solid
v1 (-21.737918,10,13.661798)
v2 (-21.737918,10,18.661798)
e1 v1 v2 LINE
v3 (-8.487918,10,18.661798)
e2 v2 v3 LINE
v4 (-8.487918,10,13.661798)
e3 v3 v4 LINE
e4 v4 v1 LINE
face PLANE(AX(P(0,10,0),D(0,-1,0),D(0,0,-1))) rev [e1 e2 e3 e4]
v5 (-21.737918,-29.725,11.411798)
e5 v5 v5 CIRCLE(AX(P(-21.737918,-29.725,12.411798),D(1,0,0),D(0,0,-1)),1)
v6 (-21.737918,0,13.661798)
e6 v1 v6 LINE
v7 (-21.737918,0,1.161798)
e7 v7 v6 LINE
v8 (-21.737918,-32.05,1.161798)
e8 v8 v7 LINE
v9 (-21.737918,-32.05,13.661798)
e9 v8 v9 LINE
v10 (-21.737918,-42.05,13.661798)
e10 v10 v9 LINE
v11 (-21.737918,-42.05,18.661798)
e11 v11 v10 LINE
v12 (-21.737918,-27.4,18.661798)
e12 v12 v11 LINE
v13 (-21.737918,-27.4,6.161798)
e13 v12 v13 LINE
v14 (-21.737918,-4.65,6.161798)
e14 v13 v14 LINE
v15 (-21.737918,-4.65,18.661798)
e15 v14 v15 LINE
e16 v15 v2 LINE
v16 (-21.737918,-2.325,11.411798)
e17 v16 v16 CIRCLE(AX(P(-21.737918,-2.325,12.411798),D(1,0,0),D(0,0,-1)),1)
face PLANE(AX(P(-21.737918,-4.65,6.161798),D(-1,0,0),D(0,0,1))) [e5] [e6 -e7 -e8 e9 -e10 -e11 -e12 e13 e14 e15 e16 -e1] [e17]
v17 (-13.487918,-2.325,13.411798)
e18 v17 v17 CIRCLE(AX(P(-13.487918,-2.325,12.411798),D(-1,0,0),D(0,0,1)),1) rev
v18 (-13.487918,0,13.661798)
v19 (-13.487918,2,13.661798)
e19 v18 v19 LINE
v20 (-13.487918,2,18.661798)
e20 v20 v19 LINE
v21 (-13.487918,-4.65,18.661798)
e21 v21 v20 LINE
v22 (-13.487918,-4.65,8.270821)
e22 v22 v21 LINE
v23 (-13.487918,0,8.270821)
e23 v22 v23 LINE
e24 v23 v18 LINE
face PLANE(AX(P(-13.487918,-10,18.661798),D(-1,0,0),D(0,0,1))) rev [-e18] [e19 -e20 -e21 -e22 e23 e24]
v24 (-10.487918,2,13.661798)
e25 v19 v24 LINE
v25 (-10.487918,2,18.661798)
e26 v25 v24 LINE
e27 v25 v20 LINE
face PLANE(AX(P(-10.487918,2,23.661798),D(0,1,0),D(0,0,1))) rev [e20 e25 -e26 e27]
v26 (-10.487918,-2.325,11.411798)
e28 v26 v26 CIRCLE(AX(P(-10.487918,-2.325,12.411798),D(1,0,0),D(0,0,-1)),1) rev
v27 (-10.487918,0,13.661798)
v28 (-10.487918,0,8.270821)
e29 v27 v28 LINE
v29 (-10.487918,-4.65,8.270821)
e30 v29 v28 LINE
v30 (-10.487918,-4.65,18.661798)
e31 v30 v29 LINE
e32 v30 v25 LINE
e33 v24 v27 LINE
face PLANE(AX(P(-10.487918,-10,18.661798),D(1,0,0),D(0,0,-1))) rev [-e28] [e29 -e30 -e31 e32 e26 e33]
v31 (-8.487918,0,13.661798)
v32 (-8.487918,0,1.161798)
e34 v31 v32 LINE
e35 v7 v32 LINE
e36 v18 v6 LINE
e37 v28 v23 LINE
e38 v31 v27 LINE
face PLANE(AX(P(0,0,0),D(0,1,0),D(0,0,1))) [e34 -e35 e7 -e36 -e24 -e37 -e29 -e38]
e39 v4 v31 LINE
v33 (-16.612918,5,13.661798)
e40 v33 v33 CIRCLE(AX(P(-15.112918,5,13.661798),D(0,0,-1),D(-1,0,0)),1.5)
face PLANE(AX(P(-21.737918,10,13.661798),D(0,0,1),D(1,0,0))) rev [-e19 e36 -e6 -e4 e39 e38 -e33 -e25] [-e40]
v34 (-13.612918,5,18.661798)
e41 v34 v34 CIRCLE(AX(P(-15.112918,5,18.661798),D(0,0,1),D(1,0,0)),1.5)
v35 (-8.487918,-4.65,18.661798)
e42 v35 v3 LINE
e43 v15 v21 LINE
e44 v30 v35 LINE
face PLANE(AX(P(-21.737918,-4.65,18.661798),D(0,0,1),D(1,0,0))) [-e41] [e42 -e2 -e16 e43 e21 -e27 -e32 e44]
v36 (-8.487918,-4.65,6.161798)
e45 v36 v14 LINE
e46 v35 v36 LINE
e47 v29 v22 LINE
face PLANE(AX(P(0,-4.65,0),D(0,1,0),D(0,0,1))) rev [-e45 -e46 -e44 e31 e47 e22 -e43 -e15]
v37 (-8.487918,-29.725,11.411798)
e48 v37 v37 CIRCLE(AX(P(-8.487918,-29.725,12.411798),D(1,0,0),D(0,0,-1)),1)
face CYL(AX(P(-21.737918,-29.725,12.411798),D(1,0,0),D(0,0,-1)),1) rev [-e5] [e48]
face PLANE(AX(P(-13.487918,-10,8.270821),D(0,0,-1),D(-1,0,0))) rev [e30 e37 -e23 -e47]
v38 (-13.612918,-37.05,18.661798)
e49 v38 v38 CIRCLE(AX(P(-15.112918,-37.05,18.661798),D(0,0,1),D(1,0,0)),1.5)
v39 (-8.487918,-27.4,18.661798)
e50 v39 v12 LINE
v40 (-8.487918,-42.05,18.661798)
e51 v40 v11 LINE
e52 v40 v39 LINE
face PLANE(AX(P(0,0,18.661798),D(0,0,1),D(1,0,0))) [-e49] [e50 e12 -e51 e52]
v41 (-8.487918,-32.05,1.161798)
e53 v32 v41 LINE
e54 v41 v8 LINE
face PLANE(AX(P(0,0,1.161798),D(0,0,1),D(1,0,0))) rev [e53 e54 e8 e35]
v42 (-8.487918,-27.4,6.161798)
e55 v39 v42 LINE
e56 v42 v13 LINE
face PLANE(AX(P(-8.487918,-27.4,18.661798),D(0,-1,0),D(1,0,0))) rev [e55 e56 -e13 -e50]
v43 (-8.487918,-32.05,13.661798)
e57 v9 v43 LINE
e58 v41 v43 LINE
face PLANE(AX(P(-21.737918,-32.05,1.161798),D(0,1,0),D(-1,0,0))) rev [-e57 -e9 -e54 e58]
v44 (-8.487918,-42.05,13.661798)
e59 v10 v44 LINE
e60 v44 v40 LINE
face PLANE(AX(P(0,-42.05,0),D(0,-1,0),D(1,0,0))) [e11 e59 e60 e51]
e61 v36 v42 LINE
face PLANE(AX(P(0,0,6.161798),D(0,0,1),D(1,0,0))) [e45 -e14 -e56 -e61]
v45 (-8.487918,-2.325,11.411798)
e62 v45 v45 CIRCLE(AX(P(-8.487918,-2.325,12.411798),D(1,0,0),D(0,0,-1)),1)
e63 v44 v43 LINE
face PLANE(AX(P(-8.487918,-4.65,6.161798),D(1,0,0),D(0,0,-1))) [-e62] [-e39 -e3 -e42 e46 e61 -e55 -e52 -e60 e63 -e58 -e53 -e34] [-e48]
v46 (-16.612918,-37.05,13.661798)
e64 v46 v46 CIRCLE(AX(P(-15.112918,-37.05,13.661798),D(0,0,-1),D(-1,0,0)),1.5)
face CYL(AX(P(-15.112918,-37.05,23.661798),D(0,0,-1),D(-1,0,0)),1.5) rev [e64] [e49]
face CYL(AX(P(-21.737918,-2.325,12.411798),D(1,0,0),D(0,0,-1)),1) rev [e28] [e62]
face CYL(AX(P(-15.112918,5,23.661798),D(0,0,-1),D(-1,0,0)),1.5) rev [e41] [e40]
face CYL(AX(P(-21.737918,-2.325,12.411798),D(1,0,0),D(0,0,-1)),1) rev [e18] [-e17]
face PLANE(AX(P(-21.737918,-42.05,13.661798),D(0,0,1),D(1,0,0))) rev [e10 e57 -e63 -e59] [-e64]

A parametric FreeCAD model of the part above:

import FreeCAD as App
import Part
import Sketcher
Q = App.Units.Quantity

doc = App.newDocument("Part")
body = doc.addObject("PartDesign::Body", "Body")

# Sketch on XZ plane
sketch1 = body.newObject("Sketcher::SketchObject", "Sketch")
sketch1.AttachmentSupport = (doc.getObject("XZ_Plane"), [""])
sketch1.MapMode = "FlatFace"
sketch1.addGeometry(Part.LineSegment(App.Vector(-21.737918, 6.161798, 0), App.Vector(-21.737918, 18.661798, 0)), False)
sketch1.addGeometry(Part.LineSegment(App.Vector(-21.737918, 18.661798, 0), App.Vector(-8.487918, 18.661798, 0)), False)
sketch1.addGeometry(Part.LineSegment(App.Vector(-8.487918, 18.661798, 0), App.Vector(-8.487918, 6.161798, 0)), False)
sketch1.addGeometry(Part.LineSegment(App.Vector(-8.487918, 6.161798, 0), App.Vector(-21.737918, 6.161798, 0)), False)
sketch1.addConstraint(Sketcher.Constraint("Coincident", 0, 2, 1, 1))
sketch1.addConstraint(Sketcher.Constraint("Coincident", 1, 2, 2, 1))
sketch1.addConstraint(Sketcher.Constraint("Coincident", 2, 2, 3, 1))
sketch1.addConstraint(Sketcher.Constraint("Coincident", 3, 2, 0, 1))
sketch1.addConstraint(Sketcher.Constraint("Vertical", 0))
sketch1.addConstraint(Sketcher.Constraint("Horizontal", 1))
sketch1.addConstraint(Sketcher.Constraint("Vertical", 2))
sketch1.addConstraint(Sketcher.Constraint("Horizontal", 3))
sketch1.addConstraint(Sketcher.Constraint("DistanceY", 0, 1, 0, 2, Q("12.5 mm")))
sketch1.addConstraint(Sketcher.Constraint("DistanceX", 1, 1, 1, 2, Q("13.25 mm")))
sketch1.addConstraint(Sketcher.Constraint("DistanceX", 0, 2, -1, 1, Q("21.737918 mm")))
sketch1.addConstraint(Sketcher.Constraint("DistanceY", -1, 1, 0, 2, Q("18.661798 mm")))
pad1 = body.newObject("PartDesign::Pad", "Pad")
pad1.Profile = sketch1
pad1.Length = 4.65

# Sketch on XY plane
sketch2 = body.newObject("Sketcher::SketchObject", "Sketch001")
sketch2.AttachmentSupport = (doc.getObject("XY_Plane"), [""])
sketch2.MapMode = "FlatFace"
sketch2.AttachmentOffset = App.Placement(App.Vector(0, 0, 6.161798), App.Rotation())
sketch2.addGeometry(Part.LineSegment(App.Vector(-8.487918, 0, 0), App.Vector(-8.487918, -32.05, 0)), False)
sketch2.addGeometry(Part.LineSegment(App.Vector(-8.487918, -32.05, 0), App.Vector(-21.737918, -32.05, 0)), False)
sketch2.addGeometry(Part.LineSegment(App.Vector(-21.737918, -32.05, 0), App.Vector(-21.737918, 0, 0)), False)
sketch2.addGeometry(Part.LineSegment(App.Vector(-21.737918, 0, 0), App.Vector(-8.487918, 0, 0)), False)
sketch2.addConstraint(Sketcher.Constraint("Coincident", 0, 2, 1, 1))
sketch2.addConstraint(Sketcher.Constraint("Coincident", 1, 2, 2, 1))
sketch2.addConstraint(Sketcher.Constraint("Coincident", 2, 2, 3, 1))
sketch2.addConstraint(Sketcher.Constraint("Coincident", 3, 2, 0, 1))
sketch2.addConstraint(Sketcher.Constraint("Vertical", 0))
sketch2.addConstraint(Sketcher.Constraint("Horizontal", 1))
sketch2.addConstraint(Sketcher.Constraint("Vertical", 2))
sketch2.addConstraint(Sketcher.Constraint("Horizontal", 3))
sketch2.addConstraint(Sketcher.Constraint("PointOnObject", 2, 2, -1))
sketch2.addConstraint(Sketcher.Constraint("DistanceX", 1, 2, 1, 1, Q("13.25 mm")))
sketch2.addConstraint(Sketcher.Constraint("DistanceY", 0, 2, 0, 1, Q("32.05 mm")))
sketch2.addConstraint(Sketcher.Constraint("DistanceX", 0, 2, -1, 1, Q("8.487918 mm")))
pad2 = body.newObject("PartDesign::Pad", "Pad001")
pad2.Profile = sketch2
pad2.Length = 5
pad2.Reversed = True

# Sketch on XY plane
sketch3 = body.newObject("Sketcher::SketchObject", "Sketch002")
sketch3.AttachmentSupport = (doc.getObject("XY_Plane"), [""])
sketch3.MapMode = "FlatFace"
sketch3.AttachmentOffset = App.Placement(App.Vector(0, 0, 6.161798), App.Rotation())
sketch3.addGeometry(Part.LineSegment(App.Vector(-21.737918, -27.4, 0), App.Vector(-21.737918, -32.05, 0)), False)
sketch3.addGeometry(Part.LineSegment(App.Vector(-21.737918, -32.05, 0), App.Vector(-8.487918, -32.05, 0)), False)
sketch3.addGeometry(Part.LineSegment(App.Vector(-8.487918, -32.05, 0), App.Vector(-8.487918, -27.4, 0)), False)
sketch3.addGeometry(Part.LineSegment(App.Vector(-8.487918, -27.4, 0), App.Vector(-21.737918, -27.4, 0)), False)
sketch3.addConstraint(Sketcher.Constraint("Coincident", 0, 2, 1, 1))
sketch3.addConstraint(Sketcher.Constraint("Coincident", 1, 2, 2, 1))
sketch3.addConstraint(Sketcher.Constraint("Coincident", 2, 2, 3, 1))
sketch3.addConstraint(Sketcher.Constraint("Coincident", 3, 2, 0, 1))
sketch3.addConstraint(Sketcher.Constraint("Vertical", 0))
sketch3.addConstraint(Sketcher.Constraint("Horizontal", 1))
sketch3.addConstraint(Sketcher.Constraint("Vertical", 2))
sketch3.addConstraint(Sketcher.Constraint("Horizontal", 3))
sketch3.addConstraint(Sketcher.Constraint("DistanceX", 1, 1, 1, 2, Q("13.25 mm")))
sketch3.addConstraint(Sketcher.Constraint("DistanceY", 0, 2, 0, 1, Q("4.65 mm")))
sketch3.addConstraint(Sketcher.Constraint("DistanceY", 2, 2, -1, 1, Q("27.4 mm")))
sketch3.addConstraint(Sketcher.Constraint("DistanceX", 0, 2, -1, 1, Q("21.737918 mm")))
pad3 = body.newObject("PartDesign::Pad", "Pad002")
pad3.Profile = sketch3
pad3.Length = 12.5

# Sketch on XZ plane
sketch4 = body.newObject("Sketcher::SketchObject", "Sketch003")
sketch4.AttachmentSupport = (doc.getObject("XZ_Plane"), [""])
sketch4.MapMode = "FlatFace"
sketch4.AttachmentOffset = App.Placement(App.Vector(0, 0, 32.05), App.Rotation())
sketch4.addGeometry(Part.LineSegment(App.Vector(-8.487918, 13.661798, 0), App.Vector(-8.487918, 18.661798, 0)), False)
sketch4.addGeometry(Part.LineSegment(App.Vector(-8.487918, 18.661798, 0), App.Vector(-21.737918, 18.661798, 0)), False)
sketch4.addGeometry(Part.LineSegment(App.Vector(-21.737918, 18.661798, 0), App.Vector(-21.737918, 13.661798, 0)), False)
sketch4.addGeometry(Part.LineSegment(App.Vector(-21.737918, 13.661798, 0), App.Vector(-8.487918, 13.661798, 0)), False)
sketch4.addConstraint(Sketcher.Constraint("Coincident", 0, 2, 1, 1))
sketch4.addConstraint(Sketcher.Constraint("Coincident", 1, 2, 2, 1))
sketch4.addConstraint(Sketcher.Constraint("Coincident", 2, 2, 3, 1))
sketch4.addConstraint(Sketcher.Constraint("Coincident", 3, 2, 0, 1))
sketch4.addConstraint(Sketcher.Constraint("Vertical", 0))
sketch4.addConstraint(Sketcher.Constraint("Horizontal", 1))
sketch4.addConstraint(Sketcher.Constraint("Vertical", 2))
sketch4.addConstraint(Sketcher.Constraint("Horizontal", 3))
sketch4.addConstraint(Sketcher.Constraint("DistanceY", 0, 1, 0, 2, Q("5 mm")))
sketch4.addConstraint(Sketcher.Constraint("DistanceX", 1, 2, 1, 1, Q("13.25 mm")))
sketch4.addConstraint(Sketcher.Constraint("DistanceX", 0, 2, -1, 1, Q("8.487918 mm")))
sketch4.addConstraint(Sketcher.Constraint("DistanceY", -1, 1, 0, 2, Q("18.661798 mm")))
pad4 = body.newObject("PartDesign::Pad", "Pad003")
pad4.Profile = sketch4
pad4.Length = 10

# Sketch on XZ plane
sketch5 = body.newObject("Sketcher::SketchObject", "Sketch004")
sketch5.AttachmentSupport = (doc.getObject("XZ_Plane"), [""])
sketch5.MapMode = "FlatFace"
sketch5.addGeometry(Part.LineSegment(App.Vector(-21.737918, 13.661798, 0), App.Vector(-21.737918, 18.661798, 0)), False)
sketch5.addGeometry(Part.LineSegment(App.Vector(-21.737918, 18.661798, 0), App.Vector(-8.487918, 18.661798, 0)), False)
sketch5.addGeometry(Part.LineSegment(App.Vector(-8.487918, 18.661798, 0), App.Vector(-8.487918, 13.661798, 0)), False)
sketch5.addGeometry(Part.LineSegment(App.Vector(-8.487918, 13.661798, 0), App.Vector(-21.737918, 13.661798, 0)), False)
sketch5.addConstraint(Sketcher.Constraint("Coincident", 0, 2, 1, 1))
sketch5.addConstraint(Sketcher.Constraint("Coincident", 1, 2, 2, 1))
sketch5.addConstraint(Sketcher.Constraint("Coincident", 2, 2, 3, 1))
sketch5.addConstraint(Sketcher.Constraint("Coincident", 3, 2, 0, 1))
sketch5.addConstraint(Sketcher.Constraint("Vertical", 0))
sketch5.addConstraint(Sketcher.Constraint("Horizontal", 1))
sketch5.addConstraint(Sketcher.Constraint("Vertical", 2))
sketch5.addConstraint(Sketcher.Constraint("Horizontal", 3))
sketch5.addConstraint(Sketcher.Constraint("DistanceY", 0, 1, 0, 2, Q("5 mm")))
sketch5.addConstraint(Sketcher.Constraint("DistanceX", 1, 1, 1, 2, Q("13.25 mm")))
sketch5.addConstraint(Sketcher.Constraint("DistanceX", 0, 2, -1, 1, Q("21.737918 mm")))
sketch5.addConstraint(Sketcher.Constraint("DistanceY", -1, 1, 0, 2, Q("18.661798 mm")))
pad5 = body.newObject("PartDesign::Pad", "Pad004")
pad5.Profile = sketch5
pad5.Length = 10
pad5.Reversed = True

# Sketch on XY plane
sketch6 = body.newObject("Sketcher::SketchObject", "Sketch005")
sketch6.AttachmentSupport = (doc.getObject("XY_Plane"), [""])
sketch6.MapMode = "FlatFace"
sketch6.AttachmentOffset = App.Placement(App.Vector(0, 0, 13.661798), App.Rotation())
sketch6.addGeometry(Part.Circle(App.Vector(-15.112918, 5, 0), App.Vector(0, 0, 1), 1.5), False)
sketch6.addGeometry(Part.Circle(App.Vector(-15.112918, -37.05, 0), App.Vector(0, 0, 1), 1.5), False)
sketch6.addConstraint(Sketcher.Constraint("Equal", 0, 1))
sketch6.addConstraint(Sketcher.Constraint("Vertical", 0, 3, 1, 3))
sketch6.addConstraint(Sketcher.Constraint("Diameter", 0, Q("3 mm")))
sketch6.addConstraint(Sketcher.Constraint("DistanceY", -1, 1, 0, 3, Q("5 mm")))
sketch6.addConstraint(Sketcher.Constraint("DistanceY", 1, 3, -1, 1, Q("37.05 mm")))
sketch6.addConstraint(Sketcher.Constraint("DistanceX", 0, 3, -1, 1, Q("15.112918 mm")))
pocket1 = body.newObject("PartDesign::Pocket", "Pocket")
pocket1.Profile = sketch6
pocket1.Length = 10
pocket1.Reversed = True

# Sketch on YZ plane
sketch7 = body.newObject("Sketcher::SketchObject", "Sketch006")
sketch7.AttachmentSupport = (doc.getObject("YZ_Plane"), [""])
sketch7.MapMode = "FlatFace"
sketch7.AttachmentOffset = App.Placement(App.Vector(0, 0, -8.487918), App.Rotation())
sketch7.addGeometry(Part.Circle(App.Vector(-2.325, 12.411798, 0), App.Vector(0, 0, 1), 1), False)
sketch7.addConstraint(Sketcher.Constraint("Diameter", 0, Q("2 mm")))
sketch7.addConstraint(Sketcher.Constraint("DistanceX", 0, 3, -1, 1, Q("2.325 mm")))
sketch7.addConstraint(Sketcher.Constraint("DistanceY", -1, 1, 0, 3, Q("12.411798 mm")))
pocket2 = body.newObject("PartDesign::Pocket", "Pocket001")
pocket2.Profile = sketch7
pocket2.Type = "ThroughAll"

# Sketch on YZ plane
sketch8 = body.newObject("Sketcher::SketchObject", "Sketch007")
sketch8.AttachmentSupport = (doc.getObject("YZ_Plane"), [""])
sketch8.MapMode = "FlatFace"
sketch8.AttachmentOffset = App.Placement(App.Vector(0, 0, -8.487918), App.Rotation())
sketch8.addGeometry(Part.Circle(App.Vector(-29.725, 12.411798, 0), App.Vector(0, 0, 1), 1), False)
sketch8.addConstraint(Sketcher.Constraint("Diameter", 0, Q("2 mm")))
sketch8.addConstraint(Sketcher.Constraint("DistanceX", 0, 3, -1, 1, Q("29.725 mm")))
sketch8.addConstraint(Sketcher.Constraint("DistanceY", -1, 1, 0, 3, Q("12.411798 mm")))
pocket3 = body.newObject("PartDesign::Pocket", "Pocket002")
pocket3.Profile = sketch8
pocket3.Type = "ThroughAll"

# Sketch on XZ plane
sketch9 = body.newObject("Sketcher::SketchObject", "Sketch008")
sketch9.AttachmentSupport = (doc.getObject("XZ_Plane"), [""])
sketch9.MapMode = "FlatFace"
sketch9.addGeometry(Part.LineSegment(App.Vector(-13.487918, 8.270821, 0), App.Vector(-13.487918, 18.661798, 0)), False)
sketch9.addGeometry(Part.LineSegment(App.Vector(-13.487918, 18.661798, 0), App.Vector(-10.487918, 18.661798, 0)), False)
sketch9.addGeometry(Part.LineSegment(App.Vector(-10.487918, 18.661798, 0), App.Vector(-10.487918, 8.270821, 0)), False)
sketch9.addGeometry(Part.LineSegment(App.Vector(-10.487918, 8.270821, 0), App.Vector(-13.487918, 8.270821, 0)), False)
sketch9.addConstraint(Sketcher.Constraint("Coincident", 0, 2, 1, 1))
sketch9.addConstraint(Sketcher.Constraint("Coincident", 1, 2, 2, 1))
sketch9.addConstraint(Sketcher.Constraint("Coincident", 2, 2, 3, 1))
sketch9.addConstraint(Sketcher.Constraint("Coincident", 3, 2, 0, 1))
sketch9.addConstraint(Sketcher.Constraint("Vertical", 0))
sketch9.addConstraint(Sketcher.Constraint("Horizontal", 1))
sketch9.addConstraint(Sketcher.Constraint("Vertical", 2))
sketch9.addConstraint(Sketcher.Constraint("Horizontal", 3))
sketch9.addConstraint(Sketcher.Constraint("DistanceX", 1, 1, 1, 2, Q("3 mm")))
sketch9.addConstraint(Sketcher.Constraint("DistanceY", 0, 1, 0, 2, Q("10.390977 mm")))
sketch9.addConstraint(Sketcher.Constraint("DistanceX", 0, 2, -1, 1, Q("13.487918 mm")))
sketch9.addConstraint(Sketcher.Constraint("DistanceY", -1, 1, 2, 2, Q("8.270821 mm")))
pocket4 = body.newObject("PartDesign::Pocket", "Pocket003")
pocket4.Profile = sketch9
pocket4.Length = 10
pocket4.Reversed = True

# Sketch on XY plane
sketch10 = body.newObject("Sketcher::SketchObject", "Sketch009")
sketch10.AttachmentSupport = (doc.getObject("XY_Plane"), [""])
sketch10.MapMode = "FlatFace"
sketch10.AttachmentOffset = App.Placement(App.Vector(0, 0, 13.661798), App.Rotation())
sketch10.addGeometry(Part.LineSegment(App.Vector(-10.487918, 2, 0), App.Vector(-10.487918, 0, 0)), False)
sketch10.addGeometry(Part.LineSegment(App.Vector(-10.487918, 0, 0), App.Vector(-13.487918, 0, 0)), False)
sketch10.addGeometry(Part.LineSegment(App.Vector(-13.487918, 0, 0), App.Vector(-13.487918, 2, 0)), False)
sketch10.addGeometry(Part.LineSegment(App.Vector(-13.487918, 2, 0), App.Vector(-10.487918, 2, 0)), False)
sketch10.addConstraint(Sketcher.Constraint("Coincident", 0, 2, 1, 1))
sketch10.addConstraint(Sketcher.Constraint("Coincident", 1, 2, 2, 1))
sketch10.addConstraint(Sketcher.Constraint("Coincident", 2, 2, 3, 1))
sketch10.addConstraint(Sketcher.Constraint("Coincident", 3, 2, 0, 1))
sketch10.addConstraint(Sketcher.Constraint("Vertical", 0))
sketch10.addConstraint(Sketcher.Constraint("Horizontal", 1))
sketch10.addConstraint(Sketcher.Constraint("Vertical", 2))
sketch10.addConstraint(Sketcher.Constraint("Horizontal", 3))
sketch10.addConstraint(Sketcher.Constraint("PointOnObject", 0, 2, -1))
sketch10.addConstraint(Sketcher.Constraint("DistanceX", 1, 2, 1, 1, Q("3 mm")))
sketch10.addConstraint(Sketcher.Constraint("DistanceY", 0, 2, 0, 1, Q("2 mm")))
sketch10.addConstraint(Sketcher.Constraint("DistanceX", 0, 2, -1, 1, Q("10.487918 mm")))
pocket5 = body.newObject("PartDesign::Pocket", "Pocket004")
pocket5.Profile = sketch10
pocket5.Length = 10
pocket5.Reversed = True

doc.recompute()
